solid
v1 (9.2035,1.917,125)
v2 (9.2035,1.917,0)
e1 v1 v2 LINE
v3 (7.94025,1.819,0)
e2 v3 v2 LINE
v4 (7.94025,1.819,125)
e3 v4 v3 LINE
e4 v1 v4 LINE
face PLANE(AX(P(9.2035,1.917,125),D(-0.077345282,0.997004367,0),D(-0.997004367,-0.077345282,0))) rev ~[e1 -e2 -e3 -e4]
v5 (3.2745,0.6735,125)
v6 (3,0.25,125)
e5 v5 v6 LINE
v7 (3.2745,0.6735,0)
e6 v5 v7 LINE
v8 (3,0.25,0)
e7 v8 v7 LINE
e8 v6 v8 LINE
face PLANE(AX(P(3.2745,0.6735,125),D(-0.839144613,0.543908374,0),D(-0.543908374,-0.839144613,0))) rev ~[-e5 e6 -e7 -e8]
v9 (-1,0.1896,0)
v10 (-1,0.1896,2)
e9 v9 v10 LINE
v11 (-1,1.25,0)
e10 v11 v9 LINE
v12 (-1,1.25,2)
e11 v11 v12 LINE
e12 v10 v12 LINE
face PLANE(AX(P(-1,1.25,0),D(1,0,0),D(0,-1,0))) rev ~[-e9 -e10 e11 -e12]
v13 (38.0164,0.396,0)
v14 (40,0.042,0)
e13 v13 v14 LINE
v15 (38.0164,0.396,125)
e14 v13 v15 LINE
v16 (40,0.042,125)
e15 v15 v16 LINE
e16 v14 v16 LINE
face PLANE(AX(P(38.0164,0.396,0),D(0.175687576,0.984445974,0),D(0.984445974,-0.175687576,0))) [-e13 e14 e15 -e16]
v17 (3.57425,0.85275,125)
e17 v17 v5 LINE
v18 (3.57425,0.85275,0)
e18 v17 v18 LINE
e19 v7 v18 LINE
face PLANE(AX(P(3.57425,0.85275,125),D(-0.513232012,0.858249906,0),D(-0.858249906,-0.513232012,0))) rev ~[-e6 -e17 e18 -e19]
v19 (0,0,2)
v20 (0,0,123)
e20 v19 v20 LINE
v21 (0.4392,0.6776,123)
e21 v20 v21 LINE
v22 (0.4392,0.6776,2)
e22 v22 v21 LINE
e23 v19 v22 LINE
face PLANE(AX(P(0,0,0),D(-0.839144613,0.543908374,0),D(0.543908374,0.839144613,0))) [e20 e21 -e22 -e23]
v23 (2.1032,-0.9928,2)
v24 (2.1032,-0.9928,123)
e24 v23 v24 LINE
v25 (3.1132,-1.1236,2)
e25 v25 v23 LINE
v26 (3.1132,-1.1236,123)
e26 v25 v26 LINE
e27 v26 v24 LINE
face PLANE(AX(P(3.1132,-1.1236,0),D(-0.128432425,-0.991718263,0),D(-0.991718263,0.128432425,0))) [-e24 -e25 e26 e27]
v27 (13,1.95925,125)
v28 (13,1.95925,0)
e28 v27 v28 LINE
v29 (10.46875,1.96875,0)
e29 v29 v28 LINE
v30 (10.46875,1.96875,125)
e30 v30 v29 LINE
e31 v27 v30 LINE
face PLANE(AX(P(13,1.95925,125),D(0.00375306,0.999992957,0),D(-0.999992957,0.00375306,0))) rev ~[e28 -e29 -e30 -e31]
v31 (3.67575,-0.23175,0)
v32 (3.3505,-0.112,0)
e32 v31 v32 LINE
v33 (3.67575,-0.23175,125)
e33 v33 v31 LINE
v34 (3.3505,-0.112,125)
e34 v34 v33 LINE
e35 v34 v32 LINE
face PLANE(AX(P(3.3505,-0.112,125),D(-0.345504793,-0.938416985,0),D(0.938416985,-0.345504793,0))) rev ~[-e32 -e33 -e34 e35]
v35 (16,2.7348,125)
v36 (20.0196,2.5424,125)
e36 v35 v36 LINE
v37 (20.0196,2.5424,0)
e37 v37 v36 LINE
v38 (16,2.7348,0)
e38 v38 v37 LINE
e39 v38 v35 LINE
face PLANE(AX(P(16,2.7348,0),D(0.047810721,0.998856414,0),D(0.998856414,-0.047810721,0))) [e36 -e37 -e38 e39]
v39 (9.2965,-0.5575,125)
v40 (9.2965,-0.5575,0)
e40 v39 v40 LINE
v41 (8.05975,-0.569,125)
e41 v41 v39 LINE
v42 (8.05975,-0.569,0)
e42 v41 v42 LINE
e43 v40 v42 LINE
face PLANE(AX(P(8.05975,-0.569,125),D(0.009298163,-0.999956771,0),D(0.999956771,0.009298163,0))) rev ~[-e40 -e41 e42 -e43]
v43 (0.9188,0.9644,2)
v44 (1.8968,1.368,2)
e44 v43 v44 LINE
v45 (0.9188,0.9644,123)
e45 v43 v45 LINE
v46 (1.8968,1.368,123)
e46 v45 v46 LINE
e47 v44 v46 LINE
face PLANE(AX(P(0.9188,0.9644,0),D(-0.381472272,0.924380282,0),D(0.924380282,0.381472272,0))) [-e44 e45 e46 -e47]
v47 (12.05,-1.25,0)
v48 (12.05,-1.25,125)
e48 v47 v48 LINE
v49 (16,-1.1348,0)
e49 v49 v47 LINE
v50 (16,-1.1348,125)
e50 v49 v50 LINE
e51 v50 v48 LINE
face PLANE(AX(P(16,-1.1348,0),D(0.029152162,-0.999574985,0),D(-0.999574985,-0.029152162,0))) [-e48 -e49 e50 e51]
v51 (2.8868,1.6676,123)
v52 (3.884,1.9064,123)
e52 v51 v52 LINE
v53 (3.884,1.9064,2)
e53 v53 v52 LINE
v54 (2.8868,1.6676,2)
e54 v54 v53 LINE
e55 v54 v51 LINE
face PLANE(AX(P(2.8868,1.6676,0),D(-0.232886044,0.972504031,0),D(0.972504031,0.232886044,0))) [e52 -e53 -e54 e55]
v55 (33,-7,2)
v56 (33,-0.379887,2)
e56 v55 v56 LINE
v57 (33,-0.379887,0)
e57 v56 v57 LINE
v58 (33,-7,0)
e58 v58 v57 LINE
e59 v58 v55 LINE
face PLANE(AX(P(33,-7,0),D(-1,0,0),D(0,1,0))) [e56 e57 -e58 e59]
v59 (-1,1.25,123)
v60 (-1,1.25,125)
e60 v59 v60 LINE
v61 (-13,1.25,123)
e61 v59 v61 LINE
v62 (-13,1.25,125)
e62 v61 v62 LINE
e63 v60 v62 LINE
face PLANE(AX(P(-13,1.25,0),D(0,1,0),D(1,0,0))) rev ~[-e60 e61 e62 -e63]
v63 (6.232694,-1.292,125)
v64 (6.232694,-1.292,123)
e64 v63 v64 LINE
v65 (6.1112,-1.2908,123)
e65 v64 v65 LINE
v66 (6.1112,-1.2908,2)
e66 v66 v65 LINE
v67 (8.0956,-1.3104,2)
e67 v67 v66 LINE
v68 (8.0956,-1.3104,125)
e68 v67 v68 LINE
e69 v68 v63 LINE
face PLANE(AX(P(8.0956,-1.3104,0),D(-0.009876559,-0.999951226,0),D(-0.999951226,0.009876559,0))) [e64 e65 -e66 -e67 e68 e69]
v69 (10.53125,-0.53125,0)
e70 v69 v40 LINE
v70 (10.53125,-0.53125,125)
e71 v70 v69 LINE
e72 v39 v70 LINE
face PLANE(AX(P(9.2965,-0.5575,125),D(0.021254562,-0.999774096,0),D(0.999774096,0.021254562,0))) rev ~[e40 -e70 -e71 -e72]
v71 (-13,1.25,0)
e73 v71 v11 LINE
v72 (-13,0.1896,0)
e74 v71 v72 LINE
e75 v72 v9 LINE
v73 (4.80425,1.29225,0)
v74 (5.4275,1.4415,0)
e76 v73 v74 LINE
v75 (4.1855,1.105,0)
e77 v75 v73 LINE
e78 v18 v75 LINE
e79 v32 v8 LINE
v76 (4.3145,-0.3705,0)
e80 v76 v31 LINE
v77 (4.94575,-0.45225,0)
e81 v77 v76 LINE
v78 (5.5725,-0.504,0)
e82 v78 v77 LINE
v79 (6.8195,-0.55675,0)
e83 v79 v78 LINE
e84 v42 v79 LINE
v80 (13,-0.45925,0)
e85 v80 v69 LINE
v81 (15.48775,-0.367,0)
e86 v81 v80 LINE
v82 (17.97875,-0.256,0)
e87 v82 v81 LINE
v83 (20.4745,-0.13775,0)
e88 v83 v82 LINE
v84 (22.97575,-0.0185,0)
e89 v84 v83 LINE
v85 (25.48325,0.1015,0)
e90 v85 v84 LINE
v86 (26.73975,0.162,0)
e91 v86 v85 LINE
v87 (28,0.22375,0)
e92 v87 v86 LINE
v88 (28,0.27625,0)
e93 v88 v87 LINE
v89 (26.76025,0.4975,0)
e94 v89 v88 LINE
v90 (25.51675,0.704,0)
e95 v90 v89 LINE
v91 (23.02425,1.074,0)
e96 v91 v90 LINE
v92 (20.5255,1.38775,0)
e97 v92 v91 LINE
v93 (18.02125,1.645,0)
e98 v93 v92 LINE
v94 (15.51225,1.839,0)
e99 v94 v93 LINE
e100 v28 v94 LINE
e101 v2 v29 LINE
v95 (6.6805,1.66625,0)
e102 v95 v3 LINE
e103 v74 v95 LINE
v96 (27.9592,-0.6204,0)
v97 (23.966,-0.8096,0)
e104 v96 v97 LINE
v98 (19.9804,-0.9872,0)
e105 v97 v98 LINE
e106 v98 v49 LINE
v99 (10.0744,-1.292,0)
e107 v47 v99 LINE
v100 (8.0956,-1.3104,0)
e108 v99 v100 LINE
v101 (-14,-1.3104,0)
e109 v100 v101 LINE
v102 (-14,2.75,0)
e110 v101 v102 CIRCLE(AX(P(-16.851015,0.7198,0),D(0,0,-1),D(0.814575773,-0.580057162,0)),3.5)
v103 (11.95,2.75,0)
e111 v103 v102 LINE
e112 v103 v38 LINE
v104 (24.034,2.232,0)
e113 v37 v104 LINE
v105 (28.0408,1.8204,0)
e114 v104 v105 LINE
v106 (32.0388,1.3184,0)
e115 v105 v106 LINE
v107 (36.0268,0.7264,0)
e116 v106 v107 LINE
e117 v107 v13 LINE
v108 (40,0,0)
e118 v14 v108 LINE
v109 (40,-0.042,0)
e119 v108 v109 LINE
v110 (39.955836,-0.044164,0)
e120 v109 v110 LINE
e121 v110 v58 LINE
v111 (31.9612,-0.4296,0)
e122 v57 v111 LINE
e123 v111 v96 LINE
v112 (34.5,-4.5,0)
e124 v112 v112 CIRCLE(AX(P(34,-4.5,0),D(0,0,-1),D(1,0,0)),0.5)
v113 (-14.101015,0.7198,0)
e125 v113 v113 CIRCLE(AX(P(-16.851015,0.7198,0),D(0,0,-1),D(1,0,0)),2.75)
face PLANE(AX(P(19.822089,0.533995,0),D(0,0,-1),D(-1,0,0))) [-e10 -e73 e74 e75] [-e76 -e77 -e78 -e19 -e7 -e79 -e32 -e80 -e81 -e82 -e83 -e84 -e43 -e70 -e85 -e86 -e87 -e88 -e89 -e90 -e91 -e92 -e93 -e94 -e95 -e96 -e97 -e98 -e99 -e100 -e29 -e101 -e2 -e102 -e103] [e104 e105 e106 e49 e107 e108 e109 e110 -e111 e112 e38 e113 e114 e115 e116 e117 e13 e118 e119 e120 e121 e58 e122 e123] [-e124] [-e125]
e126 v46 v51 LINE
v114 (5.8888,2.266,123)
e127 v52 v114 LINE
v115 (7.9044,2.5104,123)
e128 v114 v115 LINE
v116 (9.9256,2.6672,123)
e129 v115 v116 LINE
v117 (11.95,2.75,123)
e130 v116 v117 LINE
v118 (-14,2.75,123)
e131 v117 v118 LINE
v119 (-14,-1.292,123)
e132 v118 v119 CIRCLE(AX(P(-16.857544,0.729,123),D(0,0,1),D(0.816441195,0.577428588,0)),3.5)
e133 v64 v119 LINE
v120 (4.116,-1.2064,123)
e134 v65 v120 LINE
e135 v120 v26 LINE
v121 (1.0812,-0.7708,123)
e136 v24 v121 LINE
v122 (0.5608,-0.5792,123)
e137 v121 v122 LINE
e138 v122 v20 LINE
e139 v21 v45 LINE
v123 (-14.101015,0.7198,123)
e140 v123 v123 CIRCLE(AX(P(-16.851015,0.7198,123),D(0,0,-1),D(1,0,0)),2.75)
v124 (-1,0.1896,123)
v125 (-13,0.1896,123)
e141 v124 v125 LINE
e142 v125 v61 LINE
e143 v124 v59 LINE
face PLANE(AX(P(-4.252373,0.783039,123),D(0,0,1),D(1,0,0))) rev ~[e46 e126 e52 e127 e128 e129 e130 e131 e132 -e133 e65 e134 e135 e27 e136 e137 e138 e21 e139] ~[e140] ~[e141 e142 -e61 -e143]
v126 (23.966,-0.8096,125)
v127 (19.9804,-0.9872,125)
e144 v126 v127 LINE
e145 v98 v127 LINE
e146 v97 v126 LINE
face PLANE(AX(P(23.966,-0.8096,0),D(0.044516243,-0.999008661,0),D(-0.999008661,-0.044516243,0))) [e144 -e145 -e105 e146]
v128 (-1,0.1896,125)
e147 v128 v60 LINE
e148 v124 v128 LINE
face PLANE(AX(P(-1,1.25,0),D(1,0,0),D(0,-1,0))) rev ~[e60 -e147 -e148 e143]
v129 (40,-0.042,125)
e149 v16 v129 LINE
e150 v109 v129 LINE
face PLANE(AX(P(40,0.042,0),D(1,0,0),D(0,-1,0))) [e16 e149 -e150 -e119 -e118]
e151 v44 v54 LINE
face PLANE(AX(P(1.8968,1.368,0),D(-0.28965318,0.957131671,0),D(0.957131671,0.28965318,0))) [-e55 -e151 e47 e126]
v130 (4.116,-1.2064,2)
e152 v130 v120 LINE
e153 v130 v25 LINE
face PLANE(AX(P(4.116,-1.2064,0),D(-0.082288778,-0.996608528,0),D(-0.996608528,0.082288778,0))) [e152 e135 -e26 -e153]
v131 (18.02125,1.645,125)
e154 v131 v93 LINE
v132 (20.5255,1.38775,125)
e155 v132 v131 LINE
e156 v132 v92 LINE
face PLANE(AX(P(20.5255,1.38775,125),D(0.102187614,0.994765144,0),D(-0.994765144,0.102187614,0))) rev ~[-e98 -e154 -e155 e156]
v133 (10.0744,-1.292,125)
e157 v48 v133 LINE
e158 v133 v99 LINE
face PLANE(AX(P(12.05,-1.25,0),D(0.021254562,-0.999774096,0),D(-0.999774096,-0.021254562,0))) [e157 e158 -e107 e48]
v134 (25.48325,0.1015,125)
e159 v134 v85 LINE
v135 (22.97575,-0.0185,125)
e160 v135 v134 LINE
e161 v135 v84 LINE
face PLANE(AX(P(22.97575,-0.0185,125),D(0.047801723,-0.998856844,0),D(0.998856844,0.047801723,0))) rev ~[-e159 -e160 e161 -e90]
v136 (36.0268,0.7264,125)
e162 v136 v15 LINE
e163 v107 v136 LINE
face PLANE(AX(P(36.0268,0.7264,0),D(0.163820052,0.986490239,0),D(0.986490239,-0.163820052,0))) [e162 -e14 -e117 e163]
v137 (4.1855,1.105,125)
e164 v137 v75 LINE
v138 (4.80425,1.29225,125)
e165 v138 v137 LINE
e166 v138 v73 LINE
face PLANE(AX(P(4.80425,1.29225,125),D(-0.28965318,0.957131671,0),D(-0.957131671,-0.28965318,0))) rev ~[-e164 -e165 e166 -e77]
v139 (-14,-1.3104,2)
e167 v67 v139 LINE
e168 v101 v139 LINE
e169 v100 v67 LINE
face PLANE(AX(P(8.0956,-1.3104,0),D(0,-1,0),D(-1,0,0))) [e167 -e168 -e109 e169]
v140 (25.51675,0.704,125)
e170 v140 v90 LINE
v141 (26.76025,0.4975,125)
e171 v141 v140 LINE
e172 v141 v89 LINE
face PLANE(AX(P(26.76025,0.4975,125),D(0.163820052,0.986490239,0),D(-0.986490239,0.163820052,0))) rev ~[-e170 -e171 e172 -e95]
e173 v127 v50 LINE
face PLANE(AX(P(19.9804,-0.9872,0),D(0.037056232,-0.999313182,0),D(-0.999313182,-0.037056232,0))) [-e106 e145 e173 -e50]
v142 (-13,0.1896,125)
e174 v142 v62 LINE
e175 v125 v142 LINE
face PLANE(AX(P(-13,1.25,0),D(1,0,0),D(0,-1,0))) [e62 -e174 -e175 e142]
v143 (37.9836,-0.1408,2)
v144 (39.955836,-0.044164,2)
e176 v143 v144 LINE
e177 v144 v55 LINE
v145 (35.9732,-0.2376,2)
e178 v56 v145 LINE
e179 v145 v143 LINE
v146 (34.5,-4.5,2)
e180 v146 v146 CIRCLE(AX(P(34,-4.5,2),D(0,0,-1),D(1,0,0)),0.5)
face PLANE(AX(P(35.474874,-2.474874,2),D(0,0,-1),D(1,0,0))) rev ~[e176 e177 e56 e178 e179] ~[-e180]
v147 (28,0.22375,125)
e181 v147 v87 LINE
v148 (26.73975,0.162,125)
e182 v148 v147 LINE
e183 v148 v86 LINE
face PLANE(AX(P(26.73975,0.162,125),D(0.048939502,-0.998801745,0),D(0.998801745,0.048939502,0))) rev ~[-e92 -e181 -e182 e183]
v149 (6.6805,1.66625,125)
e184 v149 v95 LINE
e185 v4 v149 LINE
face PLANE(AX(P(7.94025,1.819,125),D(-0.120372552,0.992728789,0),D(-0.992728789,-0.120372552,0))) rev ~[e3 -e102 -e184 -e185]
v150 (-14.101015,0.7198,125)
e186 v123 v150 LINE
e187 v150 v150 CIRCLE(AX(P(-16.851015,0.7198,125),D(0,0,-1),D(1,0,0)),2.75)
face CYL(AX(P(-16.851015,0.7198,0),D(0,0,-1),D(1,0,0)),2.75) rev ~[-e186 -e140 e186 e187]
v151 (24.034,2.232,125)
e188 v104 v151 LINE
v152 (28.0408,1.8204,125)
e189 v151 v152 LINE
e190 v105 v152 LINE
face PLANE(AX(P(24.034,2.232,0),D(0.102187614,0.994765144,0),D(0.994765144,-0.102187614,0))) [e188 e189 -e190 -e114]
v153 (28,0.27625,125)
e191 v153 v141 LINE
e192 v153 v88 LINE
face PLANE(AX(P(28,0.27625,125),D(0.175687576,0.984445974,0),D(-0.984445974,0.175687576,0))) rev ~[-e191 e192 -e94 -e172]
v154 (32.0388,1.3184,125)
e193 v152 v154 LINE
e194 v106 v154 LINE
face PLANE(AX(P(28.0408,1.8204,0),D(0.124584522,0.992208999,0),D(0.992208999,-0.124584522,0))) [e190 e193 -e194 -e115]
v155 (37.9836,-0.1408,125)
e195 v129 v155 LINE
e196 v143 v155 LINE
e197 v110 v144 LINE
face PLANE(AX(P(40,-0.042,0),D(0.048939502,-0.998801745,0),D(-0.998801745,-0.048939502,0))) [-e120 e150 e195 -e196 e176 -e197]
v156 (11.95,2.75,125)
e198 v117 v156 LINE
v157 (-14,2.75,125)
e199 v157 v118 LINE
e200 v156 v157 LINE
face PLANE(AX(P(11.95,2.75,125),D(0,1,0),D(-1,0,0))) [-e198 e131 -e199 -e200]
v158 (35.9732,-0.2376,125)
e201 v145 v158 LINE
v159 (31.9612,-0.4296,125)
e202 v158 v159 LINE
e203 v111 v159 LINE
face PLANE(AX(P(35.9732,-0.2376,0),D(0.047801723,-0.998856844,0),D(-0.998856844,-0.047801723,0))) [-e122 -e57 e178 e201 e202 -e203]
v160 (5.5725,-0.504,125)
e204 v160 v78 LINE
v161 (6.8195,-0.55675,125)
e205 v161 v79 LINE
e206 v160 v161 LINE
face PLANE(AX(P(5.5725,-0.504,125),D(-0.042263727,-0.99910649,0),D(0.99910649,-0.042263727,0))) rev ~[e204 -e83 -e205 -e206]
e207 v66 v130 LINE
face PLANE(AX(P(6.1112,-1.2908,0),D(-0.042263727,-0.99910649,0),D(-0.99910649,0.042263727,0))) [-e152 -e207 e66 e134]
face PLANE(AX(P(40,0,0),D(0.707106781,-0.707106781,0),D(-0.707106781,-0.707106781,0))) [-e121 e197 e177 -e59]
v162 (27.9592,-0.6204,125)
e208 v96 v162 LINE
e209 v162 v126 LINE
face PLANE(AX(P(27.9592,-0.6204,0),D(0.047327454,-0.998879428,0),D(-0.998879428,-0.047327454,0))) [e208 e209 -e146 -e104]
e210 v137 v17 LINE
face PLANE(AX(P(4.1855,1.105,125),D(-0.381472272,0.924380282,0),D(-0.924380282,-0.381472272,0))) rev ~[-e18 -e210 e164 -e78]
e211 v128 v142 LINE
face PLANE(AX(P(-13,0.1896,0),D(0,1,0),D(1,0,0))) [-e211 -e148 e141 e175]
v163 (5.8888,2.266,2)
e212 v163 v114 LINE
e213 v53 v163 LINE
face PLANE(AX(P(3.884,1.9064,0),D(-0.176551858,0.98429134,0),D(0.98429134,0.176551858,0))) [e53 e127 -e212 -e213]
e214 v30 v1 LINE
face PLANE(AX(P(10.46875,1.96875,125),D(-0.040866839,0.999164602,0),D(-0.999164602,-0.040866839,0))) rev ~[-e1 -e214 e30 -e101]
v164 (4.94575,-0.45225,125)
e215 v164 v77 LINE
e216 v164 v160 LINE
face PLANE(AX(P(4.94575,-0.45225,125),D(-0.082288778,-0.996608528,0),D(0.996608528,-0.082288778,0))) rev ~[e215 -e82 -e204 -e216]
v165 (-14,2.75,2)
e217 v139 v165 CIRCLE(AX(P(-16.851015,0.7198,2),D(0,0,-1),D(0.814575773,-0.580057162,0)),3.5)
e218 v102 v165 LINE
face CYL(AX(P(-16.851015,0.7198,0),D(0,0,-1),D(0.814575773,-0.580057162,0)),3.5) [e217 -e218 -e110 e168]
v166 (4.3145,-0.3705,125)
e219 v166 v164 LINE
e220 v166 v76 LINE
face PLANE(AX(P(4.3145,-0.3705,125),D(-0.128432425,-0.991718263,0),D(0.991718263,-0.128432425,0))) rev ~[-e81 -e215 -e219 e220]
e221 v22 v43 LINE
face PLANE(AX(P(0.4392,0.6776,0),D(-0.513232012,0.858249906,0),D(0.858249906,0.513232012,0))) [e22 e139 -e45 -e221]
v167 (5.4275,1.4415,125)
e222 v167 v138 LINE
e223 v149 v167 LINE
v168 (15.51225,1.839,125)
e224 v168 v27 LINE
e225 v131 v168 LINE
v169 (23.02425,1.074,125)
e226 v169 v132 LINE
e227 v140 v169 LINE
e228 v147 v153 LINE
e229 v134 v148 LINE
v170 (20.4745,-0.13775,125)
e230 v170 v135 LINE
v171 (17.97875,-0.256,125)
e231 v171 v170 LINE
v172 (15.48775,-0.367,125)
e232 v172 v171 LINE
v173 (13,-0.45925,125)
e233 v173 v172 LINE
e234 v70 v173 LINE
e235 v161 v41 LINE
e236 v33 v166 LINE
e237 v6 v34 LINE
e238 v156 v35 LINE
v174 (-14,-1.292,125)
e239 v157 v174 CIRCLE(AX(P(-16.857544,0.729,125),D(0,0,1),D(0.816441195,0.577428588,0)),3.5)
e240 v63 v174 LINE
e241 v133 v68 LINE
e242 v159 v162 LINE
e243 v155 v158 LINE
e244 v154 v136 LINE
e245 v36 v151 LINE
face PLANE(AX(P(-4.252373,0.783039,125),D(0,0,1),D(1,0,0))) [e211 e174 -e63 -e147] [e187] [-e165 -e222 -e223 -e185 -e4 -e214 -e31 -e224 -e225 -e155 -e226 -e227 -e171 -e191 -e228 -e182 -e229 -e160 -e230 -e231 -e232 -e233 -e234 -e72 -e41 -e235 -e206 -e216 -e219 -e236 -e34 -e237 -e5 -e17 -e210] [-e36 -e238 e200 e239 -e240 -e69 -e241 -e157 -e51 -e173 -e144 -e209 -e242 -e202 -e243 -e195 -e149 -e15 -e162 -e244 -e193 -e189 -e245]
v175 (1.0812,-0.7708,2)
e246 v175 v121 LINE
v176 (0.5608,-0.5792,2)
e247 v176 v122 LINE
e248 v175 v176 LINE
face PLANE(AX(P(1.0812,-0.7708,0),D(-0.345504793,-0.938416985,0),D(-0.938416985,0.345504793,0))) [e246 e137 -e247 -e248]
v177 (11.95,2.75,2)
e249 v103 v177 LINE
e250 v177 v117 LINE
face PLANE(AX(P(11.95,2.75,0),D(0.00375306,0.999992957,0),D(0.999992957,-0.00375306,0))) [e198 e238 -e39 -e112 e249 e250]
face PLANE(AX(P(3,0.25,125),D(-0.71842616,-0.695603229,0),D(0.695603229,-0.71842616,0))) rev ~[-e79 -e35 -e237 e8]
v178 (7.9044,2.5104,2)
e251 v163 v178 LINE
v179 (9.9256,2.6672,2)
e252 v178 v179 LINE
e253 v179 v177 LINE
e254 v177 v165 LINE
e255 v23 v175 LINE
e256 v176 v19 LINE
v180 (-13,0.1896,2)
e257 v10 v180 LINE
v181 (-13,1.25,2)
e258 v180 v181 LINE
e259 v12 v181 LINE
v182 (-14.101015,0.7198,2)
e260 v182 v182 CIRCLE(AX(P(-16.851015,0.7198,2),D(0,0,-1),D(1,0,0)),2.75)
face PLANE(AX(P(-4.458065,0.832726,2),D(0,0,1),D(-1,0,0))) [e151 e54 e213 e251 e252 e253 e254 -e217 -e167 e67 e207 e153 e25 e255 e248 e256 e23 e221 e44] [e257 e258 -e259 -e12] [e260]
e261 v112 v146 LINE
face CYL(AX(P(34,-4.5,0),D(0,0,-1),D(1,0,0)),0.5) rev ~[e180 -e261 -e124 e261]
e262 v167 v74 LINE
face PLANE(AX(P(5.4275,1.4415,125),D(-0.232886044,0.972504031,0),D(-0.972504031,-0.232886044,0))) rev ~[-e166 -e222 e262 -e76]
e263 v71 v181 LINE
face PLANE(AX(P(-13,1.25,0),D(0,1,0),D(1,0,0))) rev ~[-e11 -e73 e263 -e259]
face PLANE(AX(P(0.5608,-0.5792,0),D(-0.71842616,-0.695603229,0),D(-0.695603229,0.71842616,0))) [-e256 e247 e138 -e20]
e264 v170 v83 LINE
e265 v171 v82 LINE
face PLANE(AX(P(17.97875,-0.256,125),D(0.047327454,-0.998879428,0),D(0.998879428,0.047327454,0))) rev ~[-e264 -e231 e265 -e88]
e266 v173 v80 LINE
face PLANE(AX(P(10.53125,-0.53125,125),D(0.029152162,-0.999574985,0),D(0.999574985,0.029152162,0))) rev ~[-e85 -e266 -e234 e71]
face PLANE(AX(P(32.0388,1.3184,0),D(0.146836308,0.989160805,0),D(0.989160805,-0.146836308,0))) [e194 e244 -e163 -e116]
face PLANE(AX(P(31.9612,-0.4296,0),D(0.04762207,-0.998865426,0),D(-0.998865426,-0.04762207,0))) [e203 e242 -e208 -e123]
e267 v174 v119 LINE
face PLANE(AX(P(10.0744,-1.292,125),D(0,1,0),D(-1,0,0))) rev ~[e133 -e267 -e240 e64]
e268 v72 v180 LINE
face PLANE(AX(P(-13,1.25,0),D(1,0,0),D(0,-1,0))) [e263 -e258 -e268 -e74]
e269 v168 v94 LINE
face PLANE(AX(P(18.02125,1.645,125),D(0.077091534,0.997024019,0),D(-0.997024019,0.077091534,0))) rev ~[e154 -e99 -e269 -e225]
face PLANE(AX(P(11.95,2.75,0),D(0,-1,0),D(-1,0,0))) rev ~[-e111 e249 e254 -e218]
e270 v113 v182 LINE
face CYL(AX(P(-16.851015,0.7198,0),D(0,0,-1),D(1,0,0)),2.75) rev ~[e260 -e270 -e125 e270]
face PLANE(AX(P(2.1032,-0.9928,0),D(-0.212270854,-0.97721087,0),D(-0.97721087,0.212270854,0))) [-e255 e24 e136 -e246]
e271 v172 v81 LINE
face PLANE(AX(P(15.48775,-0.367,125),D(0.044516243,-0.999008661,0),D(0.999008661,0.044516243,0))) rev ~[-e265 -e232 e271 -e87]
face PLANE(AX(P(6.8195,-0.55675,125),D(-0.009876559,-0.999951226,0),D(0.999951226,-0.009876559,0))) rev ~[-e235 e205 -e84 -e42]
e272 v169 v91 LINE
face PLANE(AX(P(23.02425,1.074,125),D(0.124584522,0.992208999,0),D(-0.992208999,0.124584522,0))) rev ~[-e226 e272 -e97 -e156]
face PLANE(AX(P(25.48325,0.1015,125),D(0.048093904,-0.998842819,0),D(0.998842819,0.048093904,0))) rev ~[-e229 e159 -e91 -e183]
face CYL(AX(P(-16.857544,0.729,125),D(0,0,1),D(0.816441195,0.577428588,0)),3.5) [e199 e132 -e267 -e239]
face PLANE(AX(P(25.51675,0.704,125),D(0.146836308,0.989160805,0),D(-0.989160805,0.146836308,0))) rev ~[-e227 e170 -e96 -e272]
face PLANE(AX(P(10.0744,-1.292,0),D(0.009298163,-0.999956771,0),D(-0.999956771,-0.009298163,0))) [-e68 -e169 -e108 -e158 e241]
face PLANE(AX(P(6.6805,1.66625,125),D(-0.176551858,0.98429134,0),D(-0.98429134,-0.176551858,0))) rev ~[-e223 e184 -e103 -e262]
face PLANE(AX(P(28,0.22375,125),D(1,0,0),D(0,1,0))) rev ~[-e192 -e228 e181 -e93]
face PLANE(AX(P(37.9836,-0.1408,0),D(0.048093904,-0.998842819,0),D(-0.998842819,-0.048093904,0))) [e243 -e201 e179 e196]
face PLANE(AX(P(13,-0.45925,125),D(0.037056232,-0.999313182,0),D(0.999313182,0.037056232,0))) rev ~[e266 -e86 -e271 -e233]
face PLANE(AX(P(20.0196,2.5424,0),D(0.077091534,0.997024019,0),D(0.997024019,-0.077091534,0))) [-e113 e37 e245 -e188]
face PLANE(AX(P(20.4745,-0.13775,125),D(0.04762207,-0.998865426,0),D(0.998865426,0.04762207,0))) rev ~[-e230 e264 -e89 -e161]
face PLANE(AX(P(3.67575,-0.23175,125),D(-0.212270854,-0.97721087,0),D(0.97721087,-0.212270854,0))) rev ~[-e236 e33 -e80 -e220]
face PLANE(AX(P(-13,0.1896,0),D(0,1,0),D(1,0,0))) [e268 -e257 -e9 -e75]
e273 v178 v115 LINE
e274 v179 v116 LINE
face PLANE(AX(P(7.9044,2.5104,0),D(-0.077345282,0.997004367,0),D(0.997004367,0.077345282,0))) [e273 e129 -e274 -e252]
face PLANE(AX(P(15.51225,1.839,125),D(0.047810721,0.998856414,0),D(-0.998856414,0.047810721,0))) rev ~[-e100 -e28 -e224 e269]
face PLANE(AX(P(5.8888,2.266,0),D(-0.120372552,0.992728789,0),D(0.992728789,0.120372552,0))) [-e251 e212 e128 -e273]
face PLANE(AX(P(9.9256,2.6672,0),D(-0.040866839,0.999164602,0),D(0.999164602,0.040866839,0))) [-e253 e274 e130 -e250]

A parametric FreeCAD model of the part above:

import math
import FreeCAD as App
import Part
import Sketcher

V = App.Vector

doc = App.newDocument("Part")
body = doc.addObject("PartDesign::Body", "Body")

# Sketch on XY plane
sketch1 = body.newObject("Sketcher::SketchObject", "Sketch")
sketch1.AttachmentSupport = (doc.getObject("XY_Plane"), [""])
sketch1.MapMode = "FlatFace"
sketch1.addGeometry(Part.LineSegment(V(40, 0.04, 0), V(38.02, 0.4, 0)), False)
sketch1.addGeometry(Part.LineSegment(V(38.02, 0.4, 0), V(36.03, 0.73, 0)), False)
sketch1.addGeometry(Part.LineSegment(V(36.03, 0.73, 0), V(32.04, 1.32, 0)), False)
sketch1.addGeometry(Part.LineSegment(V(32.04, 1.32, 0), V(28.04, 1.82, 0)), False)
sketch1.addGeometry(Part.LineSegment(V(28.04, 1.82, 0), V(24.03, 2.23, 0)), False)
sketch1.addGeometry(Part.LineSegment(V(24.03, 2.23, 0), V(20.02, 2.54, 0)), False)
sketch1.addGeometry(Part.LineSegment(V(20.02, 2.54, 0), V(16, 2.73, 0)), False)
sketch1.addGeometry(Part.LineSegment(V(16, 2.73, 0), V(11.95, 2.75, 0)), False)
sketch1.addGeometry(Part.LineSegment(V(11.95, 2.75, 0), V(9.93, 2.67, 0)), False)
sketch1.addGeometry(Part.LineSegment(V(9.93, 2.67, 0), V(7.9, 2.51, 0)), False)
sketch1.addGeometry(Part.LineSegment(V(7.9, 2.51, 0), V(5.89, 2.27, 0)), False)
sketch1.addGeometry(Part.LineSegment(V(5.89, 2.27, 0), V(3.88, 1.91, 0)), False)
sketch1.addGeometry(Part.LineSegment(V(3.88, 1.91, 0), V(2.89, 1.67, 0)), False)
sketch1.addGeometry(Part.LineSegment(V(2.89, 1.67, 0), V(1.9, 1.37, 0)), False)
sketch1.addGeometry(Part.LineSegment(V(1.9, 1.37, 0), V(0.92, 0.96, 0)), False)
sketch1.addGeometry(Part.LineSegment(V(0.92, 0.96, 0), V(0.44, 0.68, 0)), False)
sketch1.addGeometry(Part.LineSegment(V(0.44, 0.68, 0), V(0, 0, 0)), False)
sketch1.addGeometry(Part.LineSegment(V(0, 0, 0), V(0.56, -0.58, 0)), False)
sketch1.addGeometry(Part.LineSegment(V(0.56, -0.58, 0), V(1.08, -0.77, 0)), False)
sketch1.addGeometry(Part.LineSegment(V(1.08, -0.77, 0), V(2.1, -0.99, 0)), False)
sketch1.addGeometry(Part.LineSegment(V(2.1, -0.99, 0), V(3.11, -1.12, 0)), False)
sketch1.addGeometry(Part.LineSegment(V(3.11, -1.12, 0), V(4.12, -1.21, 0)), False)
sketch1.addGeometry(Part.LineSegment(V(4.12, -1.21, 0), V(6.11, -1.29, 0)), False)
sketch1.addGeometry(Part.LineSegment(V(6.11, -1.29, 0), V(8.1, -1.31, 0)), False)
sketch1.addGeometry(Part.LineSegment(V(8.1, -1.31, 0), V(10.07, -1.29, 0)), False)
sketch1.addGeometry(Part.LineSegment(V(10.07, -1.29, 0), V(12.05, -1.25, 0)), False)
sketch1.addGeometry(Part.LineSegment(V(12.05, -1.25, 0), V(16, -1.13, 0)), False)
sketch1.addGeometry(Part.LineSegment(V(16, -1.13, 0), V(19.98, -0.99, 0)), False)
sketch1.addGeometry(Part.LineSegment(V(19.98, -0.99, 0), V(23.97, -0.81, 0)), False)
sketch1.addGeometry(Part.LineSegment(V(23.97, -0.81, 0), V(27.96, -0.62, 0)), False)
sketch1.addGeometry(Part.LineSegment(V(27.96, -0.62, 0), V(31.96, -0.43, 0)), False)
sketch1.addGeometry(Part.LineSegment(V(31.96, -0.43, 0), V(35.97, -0.24, 0)), False)
sketch1.addGeometry(Part.LineSegment(V(35.97, -0.24, 0), V(37.98, -0.14, 0)), False)
sketch1.addGeometry(Part.LineSegment(V(37.98, -0.14, 0), V(40, -0.04, 0)), False)
sketch1.addGeometry(Part.LineSegment(V(40, -0.04, 0), V(40, 0.04, 0)), False)
sketch1.addConstraint(Sketcher.Constraint("Coincident", 0, 2, 1, 1))
sketch1.addConstraint(Sketcher.Constraint("Coincident", 1, 2, 2, 1))
sketch1.addConstraint(Sketcher.Constraint("Coincident", 2, 2, 3, 1))
sketch1.addConstraint(Sketcher.Constraint("Coincident", 3, 2, 4, 1))
sketch1.addConstraint(Sketcher.Constraint("Coincident", 4, 2, 5, 1))
sketch1.addConstraint(Sketcher.Constraint("Coincident", 5, 2, 6, 1))
sketch1.addConstraint(Sketcher.Constraint("Coincident", 6, 2, 7, 1))
sketch1.addConstraint(Sketcher.Constraint("Coincident", 7, 2, 8, 1))
sketch1.addConstraint(Sketcher.Constraint("Coincident", 8, 2, 9, 1))
sketch1.addConstraint(Sketcher.Constraint("Coincident", 9, 2, 10, 1))
sketch1.addConstraint(Sketcher.Constraint("Coincident", 10, 2, 11, 1))
sketch1.addConstraint(Sketcher.Constraint("Coincident", 11, 2, 12, 1))
sketch1.addConstraint(Sketcher.Constraint("Coincident", 12, 2, 13, 1))
sketch1.addConstraint(Sketcher.Constraint("Coincident", 13, 2, 14, 1))
sketch1.addConstraint(Sketcher.Constraint("Coincident", 14, 2, 15, 1))
sketch1.addConstraint(Sketcher.Constraint("Coincident", 15, 2, 16, 1))
sketch1.addConstraint(Sketcher.Constraint("Coincident", 16, 2, 17, 1))
sketch1.addConstraint(Sketcher.Constraint("Coincident", 17, 2, 18, 1))
sketch1.addConstraint(Sketcher.Constraint("Coincident", 18, 2, 19, 1))
sketch1.addConstraint(Sketcher.Constraint("Coincident", 19, 2, 20, 1))
sketch1.addConstraint(Sketcher.Constraint("Coincident", 20, 2, 21, 1))
sketch1.addConstraint(Sketcher.Constraint("Coincident", 21, 2, 22, 1))
sketch1.addConstraint(Sketcher.Constraint("Coincident", 22, 2, 23, 1))
sketch1.addConstraint(Sketcher.Constraint("Coincident", 23, 2, 24, 1))
sketch1.addConstraint(Sketcher.Constraint("Coincident", 24, 2, 25, 1))
sketch1.addConstraint(Sketcher.Constraint("Coincident", 25, 2, 26, 1))
sketch1.addConstraint(Sketcher.Constraint("Coincident", 26, 2, 27, 1))
sketch1.addConstraint(Sketcher.Constraint("Coincident", 27, 2, 28, 1))
sketch1.addConstraint(Sketcher.Constraint("Coincident", 28, 2, 29, 1))
sketch1.addConstraint(Sketcher.Constraint("Coincident", 29, 2, 30, 1))
sketch1.addConstraint(Sketcher.Constraint("Coincident", 30, 2, 31, 1))
sketch1.addConstraint(Sketcher.Constraint("Coincident", 31, 2, 32, 1))
sketch1.addConstraint(Sketcher.Constraint("Coincident", 32, 2, 33, 1))
sketch1.addConstraint(Sketcher.Constraint("Coincident", 33, 2, 34, 1))
sketch1.addConstraint(Sketcher.Constraint("Coincident", 34, 2, 0, 1))
sketch1.addConstraint(Sketcher.Constraint("Vertical", 34))
sketch1.addConstraint(Sketcher.Constraint("Coincident", 16, 2, -1, 1))
sketch1.addConstraint(Sketcher.Constraint("Vertical", 6, 2, 26, 2))
sketch1.addConstraint(Sketcher.Constraint("DistanceX", -1, 1, 6, 2, 16.0))
sketch1.addConstraint(Sketcher.Constraint("DistanceX", -1, 1, 33, 2, 40.0))
sketch1.addConstraint(Sketcher.Constraint("DistanceY", 25, 2, 7, 2, 4.0))
sketch1.addConstraint(Sketcher.Constraint("DistanceX", 7, 2, 25, 2, 0.1))
sketch1.addConstraint(Sketcher.Constraint("DistanceY", 34, 1, 34, 2, 0.084))
sketch1.addConstraint(Sketcher.Constraint("DistanceX", -1, 1, 7, 2, 11.95))
sketch1.addConstraint(Sketcher.Constraint("DistanceY", -1, 1, 7, 2, 2.75))
sketch1.addConstraint(Sketcher.Constraint("DistanceX", 13, 2, 12, 2, 0.99))
sketch1.addConstraint(Sketcher.Constraint("DistanceX", 14, 2, 10, 2, 4.97))
sketch1.addConstraint(Sketcher.Constraint("DistanceY", 15, 2, 12, 2, 0.99))
sketch1.addConstraint(Sketcher.Constraint("DistanceX", 19, 2, 20, 2, 1.01))
sketch1.addConstraint(Sketcher.Constraint("DistanceX", 23, 2, 8, 2, 1.83))
sketch1.addConstraint(Sketcher.Constraint("DistanceX", 9, 2, 24, 2, 2.17))
sketch1.addConstraint(Sketcher.Constraint("DistanceY", 28, 2, 3, 2, 2.63))
sketch1.addConstraint(Sketcher.Constraint("DistanceY", 30, 2, 3, 2, 2.25))
sketch1.addConstraint(Sketcher.Constraint("DistanceY", -1, 1, 0, 2, 0.396))
sketch1.addConstraint(Sketcher.Constraint("DistanceX", -1, 1, 4, 2, 24.034))
sketch1.addConstraint(Sketcher.Constraint("DistanceY", -1, 1, 4, 2, 2.232))
sketch1.addConstraint(Sketcher.Constraint("DistanceY", -1, 1, 10, 2, 2.266))
sketch1.addConstraint(Sketcher.Constraint("DistanceX", -1, 1, 11, 2, 3.884))
sketch1.addConstraint(Sketcher.Constraint("DistanceY", -1, 1, 13, 2, 1.368))
sketch1.addConstraint(Sketcher.Constraint("DistanceX", -1, 1, 21, 2, 4.116))
sketch1.addConstraint(Sketcher.Constraint("DistanceY", 24, 2, -1, 1, 1.292))
sketch1.addConstraint(Sketcher.Constraint("DistanceX", -1, 1, 28, 2, 23.966))
sketch1.addConstraint(Sketcher.Constraint("DistanceY", 33, 2, -1, 1, 0.042))
sketch1.addConstraint(Sketcher.Constraint("DistanceX", 2, 2, 1, 2, 3.988))
sketch1.addConstraint(Sketcher.Constraint("DistanceY", 1, 2, 2, 2, 0.592))
sketch1.addConstraint(Sketcher.Constraint("DistanceX", 3, 2, 2, 2, 3.998))
sketch1.addConstraint(Sketcher.Constraint("DistanceY", 2, 2, 3, 2, 0.502))
sketch1.addConstraint(Sketcher.Constraint("DistanceY", 3, 2, 5, 2, 0.722))
sketch1.addConstraint(Sketcher.Constraint("DistanceX", 8, 2, 5, 2, 10.094))
sketch1.addConstraint(Sketcher.Constraint("DistanceY", 9, 2, 5, 2, 0.032))
sketch1.addConstraint(Sketcher.Constraint("DistanceY", 11, 2, 9, 2, 0.604))
sketch1.addConstraint(Sketcher.Constraint("DistanceX", 12, 2, 10, 2, 3.002))
sketch1.addConstraint(Sketcher.Constraint("DistanceY", 14, 2, 11, 2, 0.942))
sketch1.addConstraint(Sketcher.Constraint("DistanceX", 17, 2, 14, 2, 0.358))
sketch1.addConstraint(Sketcher.Constraint("DistanceX", 15, 2, 18, 2, 0.642))
sketch1.addConstraint(Sketcher.Constraint("DistanceX", 18, 2, 19, 2, 1.022))
sketch1.addConstraint(Sketcher.Constraint("DistanceY", 19, 2, 18, 2, 0.222))
sketch1.addConstraint(Sketcher.Constraint("DistanceY", 21, 2, 12, 2, 2.874))
sketch1.addConstraint(Sketcher.Constraint("DistanceX", 20, 2, 22, 2, 2.998))
sketch1.addConstraint(Sketcher.Constraint("DistanceY", 22, 2, 19, 2, 0.298))
sketch1.addConstraint(Sketcher.Constraint("DistanceY", 23, 2, 21, 2, 0.104))
sketch1.addConstraint(Sketcher.Constraint("DistanceY", 27, 2, 6, 2, 3.722))
sketch1.addConstraint(Sketcher.Constraint("DistanceX", 29, 2, 30, 2, 4.002))
sketch1.addConstraint(Sketcher.Constraint("DistanceY", 31, 2, 1, 2, 0.964))
sketch1.addConstraint(Sketcher.Constraint("DistanceX", 30, 2, 31, 2, 4.012))
sketch1.addConstraint(Sketcher.Constraint("DistanceX", -1, 1, 0, 2, 38.0164))
sketch1.addConstraint(Sketcher.Constraint("DistanceX", -1, 1, 1, 2, 36.0268))
sketch1.addConstraint(Sketcher.Constraint("DistanceY", -1, 1, 1, 2, 0.7264))
sketch1.addConstraint(Sketcher.Constraint("DistanceX", -1, 1, 5, 2, 20.0196))
sketch1.addConstraint(Sketcher.Constraint("DistanceY", -1, 1, 6, 2, 2.7348))
sketch1.addConstraint(Sketcher.Constraint("DistanceY", -1, 1, 8, 2, 2.6672))
sketch1.addConstraint(Sketcher.Constraint("DistanceX", -1, 1, 9, 2, 7.9044))
sketch1.addConstraint(Sketcher.Constraint("DistanceX", -1, 1, 10, 2, 5.8888))
sketch1.addConstraint(Sketcher.Constraint("DistanceY", -1, 1, 12, 2, 1.6676))
sketch1.addConstraint(Sketcher.Constraint("DistanceX", -1, 1, 15, 2, 0.4392))
sketch1.addConstraint(Sketcher.Constraint("DistanceY", 17, 2, -1, 1, 0.5792))
sketch1.addConstraint(Sketcher.Constraint("DistanceY", 18, 2, -1, 1, 0.7708))
sketch1.addConstraint(Sketcher.Constraint("DistanceY", 20, 2, -1, 1, 1.1236))
sketch1.addConstraint(Sketcher.Constraint("DistanceY", 26, 2, -1, 1, 1.1348))
sketch1.addConstraint(Sketcher.Constraint("DistanceX", -1, 1, 27, 2, 19.9804))
sketch1.addConstraint(Sketcher.Constraint("DistanceX", -1, 1, 29, 2, 27.9592))
sketch1.addConstraint(Sketcher.Constraint("DistanceY", 29, 2, -1, 1, 0.6204))
sketch1.addConstraint(Sketcher.Constraint("DistanceX", -1, 1, 32, 2, 37.9836))
sketch1.addConstraint(Sketcher.Constraint("DistanceY", 32, 2, -1, 1, 0.1408))
pad1 = body.newObject("PartDesign::Pad", "Pad")
pad1.Profile = sketch1
pad1.Length = 125

# Sketch on XY plane
sketch2 = body.newObject("Sketcher::SketchObject", "Sketch001")
sketch2.AttachmentSupport = (doc.getObject("XY_Plane"), [""])
sketch2.MapMode = "FlatFace"
sketch2.AttachmentOffset = App.Placement(V(0, 0, 125), App.Rotation())
sketch2.addGeometry(Part.LineSegment(V(11.9, 2.8, 0), V(-14, 2.8, 0)), False)
sketch2.addGeometry(Part.ArcOfCircle(Part.Circle(V(-16.9, 0.7, 0), V(0, 0, 1), 3.5), math.radians(35), math.radians(325)), False)
sketch2.addGeometry(Part.LineSegment(V(-14, -1.3, 0), V(10.1, -1.3, 0)), False)
sketch2.addGeometry(Part.LineSegment(V(10.1, -1.3, 0), V(11.9, 2.8, 0)), False)
sketch2.addConstraint(Sketcher.Constraint("Coincident", 0, 2, 1, 1))
sketch2.addConstraint(Sketcher.Constraint("Coincident", 1, 2, 2, 1))
sketch2.addConstraint(Sketcher.Constraint("Coincident", 2, 2, 3, 1))
sketch2.addConstraint(Sketcher.Constraint("Coincident", 3, 2, 0, 1))
sketch2.addConstraint(Sketcher.Constraint("Horizontal", 0))
sketch2.addConstraint(Sketcher.Constraint("Horizontal", 2))
sketch2.addConstraint(Sketcher.Constraint("Vertical", 0, 2, 1, 2))
sketch2.addConstraint(Sketcher.Constraint("Radius", 1, 3.5))
sketch2.addConstraint(Sketcher.Constraint("DistanceX", 0, 2, -1, 1, 14.0))
sketch2.addConstraint(Sketcher.Constraint("DistanceX", 0, 2, 0, 1, 25.95))
sketch2.addConstraint(Sketcher.Constraint("DistanceY", -1, 1, 0, 2, 2.75))
sketch2.addConstraint(Sketcher.Constraint("DistanceX", 2, 1, 2, 2, 24.0744))
sketch2.addConstraint(Sketcher.Constraint("DistanceY", -1, 1, 1, 3, 0.729))
pad2 = body.newObject("PartDesign::Pad", "Pad001")
pad2.Profile = sketch2
pad2.Length = 2
pad2.Reversed = True

# Sketch on XY plane
sketch3 = body.newObject("Sketcher::SketchObject", "Sketch002")
sketch3.AttachmentSupport = (doc.getObject("XY_Plane"), [""])
sketch3.MapMode = "FlatFace"
sketch3.addGeometry(Part.LineSegment(V(11.9, 2.8, 0), V(8.1, -1.3, 0)), False)
sketch3.addGeometry(Part.LineSegment(V(8.1, -1.3, 0), V(-14, -1.3, 0)), False)
sketch3.addGeometry(Part.ArcOfCircle(Part.Circle(V(-16.9, 0.7, 0), V(0, 0, 1), 3.5), math.radians(35), math.radians(325)), False)
sketch3.addGeometry(Part.LineSegment(V(-14, 2.8, 0), V(11.9, 2.8, 0)), False)
sketch3.addConstraint(Sketcher.Constraint("Coincident", 0, 2, 1, 1))
sketch3.addConstraint(Sketcher.Constraint("Coincident", 1, 2, 2, 2))
sketch3.addConstraint(Sketcher.Constraint("Coincident", 2, 1, 3, 1))
sketch3.addConstraint(Sketcher.Constraint("Coincident", 3, 2, 0, 1))
sketch3.addConstraint(Sketcher.Constraint("Horizontal", 1))
sketch3.addConstraint(Sketcher.Constraint("Horizontal", 3))
sketch3.addConstraint(Sketcher.Constraint("Vertical", 1, 2, 2, 1))
sketch3.addConstraint(Sketcher.Constraint("Radius", 2, 3.5))
sketch3.addConstraint(Sketcher.Constraint("DistanceX", 1, 2, -1, 1, 14.0))
sketch3.addConstraint(Sketcher.Constraint("DistanceX", 3, 1, 3, 2, 25.95))
sketch3.addConstraint(Sketcher.Constraint("DistanceY", -1, 1, 2, 1, 2.75))
sketch3.addConstraint(Sketcher.Constraint("DistanceX", 1, 2, 1, 1, 22.0956))
sketch3.addConstraint(Sketcher.Constraint("DistanceY", -1, 1, 2, 3, 0.7198))
pad3 = body.newObject("PartDesign::Pad", "Pad002")
pad3.Profile = sketch3
pad3.Length = 2

# Sketch on XY plane
sketch4 = body.newObject("Sketcher::SketchObject", "Sketch003")
sketch4.AttachmentSupport = (doc.getObject("XY_Plane"), [""])
sketch4.MapMode = "FlatFace"
sketch4.addGeometry(Part.Circle(V(-16.9, 0.7, 0), V(0, 0, 1), 2.8), False)
sketch4.addConstraint(Sketcher.Constraint("Diameter", 0, 5.5))
sketch4.addConstraint(Sketcher.Constraint("DistanceY", -1, 1, 0, 3, 0.7198))
sketch4.addConstraint(Sketcher.Constraint("DistanceX", 0, 3, -1, 1, 16.851015))
pocket1 = body.newObject("PartDesign::Pocket", "Pocket")
pocket1.Profile = sketch4
pocket1.Type = "ThroughAll"
pocket1.Reversed = True

# Sketch on XY plane
sketch5 = body.newObject("Sketcher::SketchObject", "Sketch004")
sketch5.AttachmentSupport = (doc.getObject("XY_Plane"), [""])
sketch5.MapMode = "FlatFace"
sketch5.AttachmentOffset = App.Placement(V(0, 0, 125), App.Rotation())
sketch5.addGeometry(Part.LineSegment(V(28, 0.28, 0), V(26.76, 0.5, 0)), False)
sketch5.addGeometry(Part.LineSegment(V(26.76, 0.5, 0), V(25.52, 0.7, 0)), False)
sketch5.addGeometry(Part.LineSegment(V(25.52, 0.7, 0), V(23.02, 1.07, 0)), False)
sketch5.addGeometry(Part.LineSegment(V(23.02, 1.07, 0), V(20.53, 1.39, 0)), False)
sketch5.addGeometry(Part.LineSegment(V(20.53, 1.39, 0), V(18.02, 1.65, 0)), False)
sketch5.addGeometry(Part.LineSegment(V(18.02, 1.65, 0), V(15.51, 1.84, 0)), False)
sketch5.addGeometry(Part.LineSegment(V(15.51, 1.84, 0), V(13, 1.96, 0)), False)
sketch5.addGeometry(Part.LineSegment(V(13, 1.96, 0), V(10.47, 1.97, 0)), False)
sketch5.addGeometry(Part.LineSegment(V(10.47, 1.97, 0), V(9.2, 1.92, 0)), False)
sketch5.addGeometry(Part.LineSegment(V(9.2, 1.92, 0), V(7.94, 1.82, 0)), False)
sketch5.addGeometry(Part.LineSegment(V(7.94, 1.82, 0), V(6.68, 1.67, 0)), False)
sketch5.addGeometry(Part.LineSegment(V(6.68, 1.67, 0), V(5.43, 1.44, 0)), False)
sketch5.addGeometry(Part.LineSegment(V(5.43, 1.44, 0), V(4.8, 1.29, 0)), False)
sketch5.addGeometry(Part.LineSegment(V(4.8, 1.29, 0), V(4.19, 1.1, 0)), False)
sketch5.addGeometry(Part.LineSegment(V(4.19, 1.1, 0), V(3.57, 0.85, 0)), False)
sketch5.addGeometry(Part.LineSegment(V(3.57, 0.85, 0), V(3.27, 0.67, 0)), False)
sketch5.addGeometry(Part.LineSegment(V(3.27, 0.67, 0), V(3, 0.25, 0)), False)
sketch5.addGeometry(Part.LineSegment(V(3, 0.25, 0), V(3.35, -0.11, 0)), False)
sketch5.addGeometry(Part.LineSegment(V(3.35, -0.11, 0), V(3.68, -0.23, 0)), False)
sketch5.addGeometry(Part.LineSegment(V(3.68, -0.23, 0), V(4.31, -0.37, 0)), False)
sketch5.addGeometry(Part.LineSegment(V(4.31, -0.37, 0), V(4.95, -0.45, 0)), False)
sketch5.addGeometry(Part.LineSegment(V(4.95, -0.45, 0), V(5.57, -0.5, 0)), False)
sketch5.addGeometry(Part.LineSegment(V(5.57, -0.5, 0), V(6.82, -0.56, 0)), False)
sketch5.addGeometry(Part.LineSegment(V(6.82, -0.56, 0), V(8.06, -0.57, 0)), False)
sketch5.addGeometry(Part.LineSegment(V(8.06, -0.57, 0), V(9.3, -0.56, 0)), False)
sketch5.addGeometry(Part.LineSegment(V(9.3, -0.56, 0), V(10.53, -0.53, 0)), False)
sketch5.addGeometry(Part.LineSegment(V(10.53, -0.53, 0), V(13, -0.46, 0)), False)
sketch5.addGeometry(Part.LineSegment(V(13, -0.46, 0), V(15.49, -0.37, 0)), False)
sketch5.addGeometry(Part.LineSegment(V(15.49, -0.37, 0), V(17.98, -0.26, 0)), False)
sketch5.addGeometry(Part.LineSegment(V(17.98, -0.26, 0), V(20.47, -0.14, 0)), False)
sketch5.addGeometry(Part.LineSegment(V(20.47, -0.14, 0), V(22.98, -0.02, 0)), False)
sketch5.addGeometry(Part.LineSegment(V(22.98, -0.02, 0), V(25.48, 0.1, 0)), False)
sketch5.addGeometry(Part.LineSegment(V(25.48, 0.1, 0), V(26.74, 0.16, 0)), False)
sketch5.addGeometry(Part.LineSegment(V(26.74, 0.16, 0), V(28, 0.22, 0)), False)
sketch5.addGeometry(Part.LineSegment(V(28, 0.22, 0), V(28, 0.28, 0)), False)
sketch5.addConstraint(Sketcher.Constraint("Coincident", 0, 2, 1, 1))
sketch5.addConstraint(Sketcher.Constraint("Coincident", 1, 2, 2, 1))
sketch5.addConstraint(Sketcher.Constraint("Coincident", 2, 2, 3, 1))
sketch5.addConstraint(Sketcher.Constraint("Coincident", 3, 2, 4, 1))
sketch5.addConstraint(Sketcher.Constraint("Coincident", 4, 2, 5, 1))
sketch5.addConstraint(Sketcher.Constraint("Coincident", 5, 2, 6, 1))
sketch5.addConstraint(Sketcher.Constraint("Coincident", 6, 2, 7, 1))
sketch5.addConstraint(Sketcher.Constraint("Coincident", 7, 2, 8, 1))
sketch5.addConstraint(Sketcher.Constraint("Coincident", 8, 2, 9, 1))
sketch5.addConstraint(Sketcher.Constraint("Coincident", 9, 2, 10, 1))
sketch5.addConstraint(Sketcher.Constraint("Coincident", 10, 2, 11, 1))
sketch5.addConstraint(Sketcher.Constraint("Coincident", 11, 2, 12, 1))
sketch5.addConstraint(Sketcher.Constraint("Coincident", 12, 2, 13, 1))
sketch5.addConstraint(Sketcher.Constraint("Coincident", 13, 2, 14, 1))
sketch5.addConstraint(Sketcher.Constraint("Coincident", 14, 2, 15, 1))
sketch5.addConstraint(Sketcher.Constraint("Coincident", 15, 2, 16, 1))
sketch5.addConstraint(Sketcher.Constraint("Coincident", 16, 2, 17, 1))
sketch5.addConstraint(Sketcher.Constraint("Coincident", 17, 2, 18, 1))
sketch5.addConstraint(Sketcher.Constraint("Coincident", 18, 2, 19, 1))
sketch5.addConstraint(Sketcher.Constraint("Coincident", 19, 2, 20, 1))
sketch5.addConstraint(Sketcher.Constraint("Coincident", 20, 2, 21, 1))
sketch5.addConstraint(Sketcher.Constraint("Coincident", 21, 2, 22, 1))
sketch5.addConstraint(Sketcher.Constraint("Coincident", 22, 2, 23, 1))
sketch5.addConstraint(Sketcher.Constraint("Coincident", 23, 2, 24, 1))
sketch5.addConstraint(Sketcher.Constraint("Coincident", 24, 2, 25, 1))
sketch5.addConstraint(Sketcher.Constraint("Coincident", 25, 2, 26, 1))
sketch5.addConstraint(Sketcher.Constraint("Coincident", 26, 2, 27, 1))
sketch5.addConstraint(Sketcher.Constraint("Coincident", 27, 2, 28, 1))
sketch5.addConstraint(Sketcher.Constraint("Coincident", 28, 2, 29, 1))
sketch5.addConstraint(Sketcher.Constraint("Coincident", 29, 2, 30, 1))
sketch5.addConstraint(Sketcher.Constraint("Coincident", 30, 2, 31, 1))
sketch5.addConstraint(Sketcher.Constraint("Coincident", 31, 2, 32, 1))
sketch5.addConstraint(Sketcher.Constraint("Coincident", 32, 2, 33, 1))
sketch5.addConstraint(Sketcher.Constraint("Coincident", 33, 2, 34, 1))
sketch5.addConstraint(Sketcher.Constraint("Coincident", 34, 2, 0, 1))
sketch5.addConstraint(Sketcher.Constraint("Vertical", 34))
sketch5.addConstraint(Sketcher.Constraint("Vertical", 6, 2, 26, 2))
sketch5.addConstraint(Sketcher.Constraint("DistanceX", -1, 1, 6, 2, 13.0))
sketch5.addConstraint(Sketcher.Constraint("DistanceX", -1, 1, 16, 2, 3.0))
sketch5.addConstraint(Sketcher.Constraint("DistanceX", -1, 1, 33, 2, 28.0))
sketch5.addConstraint(Sketcher.Constraint("DistanceY", 25, 2, 7, 2, 2.5))
sketch5.addConstraint(Sketcher.Constraint("DistanceY", -1, 1, 16, 2, 0.25))
sketch5.addConstraint(Sketcher.Constraint("DistanceY", 1, 2, 2, 2, 0.37))
sketch5.addConstraint(Sketcher.Constraint("DistanceY", 9, 2, 5, 2, 0.02))
sketch5.addConstraint(Sketcher.Constraint("DistanceX", 14, 2, 12, 2, 1.23))
sketch5.addConstraint(Sketcher.Constraint("DistanceX", 15, 2, 19, 2, 1.04))
sketch5.addConstraint(Sketcher.Constraint("DistanceX", 18, 2, 20, 2, 1.27))
sketch5.addConstraint(Sketcher.Constraint("DistanceY", 30, 2, 31, 2, 0.12))
sketch5.addConstraint(Sketcher.Constraint("DistanceY", 34, 1, 34, 2, 0.0525))
sketch5.addConstraint(Sketcher.Constraint("DistanceY", -1, 1, 1, 2, 0.704))
sketch5.addConstraint(Sketcher.Constraint("DistanceY", -1, 1, 4, 2, 1.645))
sketch5.addConstraint(Sketcher.Constraint("DistanceY", -1, 1, 5, 2, 1.839))
sketch5.addConstraint(Sketcher.Constraint("DistanceY", -1, 1, 8, 2, 1.917))
sketch5.addConstraint(Sketcher.Constraint("DistanceY", -1, 1, 13, 2, 1.105))
sketch5.addConstraint(Sketcher.Constraint("DistanceY", 17, 2, -1, 1, 0.112))
sketch5.addConstraint(Sketcher.Constraint("DistanceY", 21, 2, -1, 1, 0.504))
sketch5.addConstraint(Sketcher.Constraint("DistanceY", 23, 2, -1, 1, 0.569))
sketch5.addConstraint(Sketcher.Constraint("DistanceY", 27, 2, -1, 1, 0.367))
sketch5.addConstraint(Sketcher.Constraint("DistanceY", 28, 2, -1, 1, 0.256))
sketch5.addConstraint(Sketcher.Constraint("DistanceY", -1, 1, 32, 2, 0.162))
sketch5.addConstraint(Sketcher.Constraint("DistanceX", 2, 2, 0, 2, 3.736))
sketch5.addConstraint(Sketcher.Constraint("DistanceX", 4, 2, 2, 2, 5.003))
sketch5.addConstraint(Sketcher.Constraint("DistanceX", 5, 2, 4, 2, 2.509))
sketch5.addConstraint(Sketcher.Constraint("DistanceY", 3, 2, 7, 2, 0.581))
sketch5.addConstraint(Sketcher.Constraint("DistanceX", 8, 2, 3, 2, 11.322))
sketch5.addConstraint(Sketcher.Constraint("DistanceX", 9, 2, 5, 2, 7.572))
sketch5.addConstraint(Sketcher.Constraint("DistanceX", 10, 2, 8, 2, 2.523))
sketch5.addConstraint(Sketcher.Constraint("DistanceY", 10, 2, 6, 2, 0.293))
sketch5.addConstraint(Sketcher.Constraint("DistanceX", 11, 2, 10, 2, 1.253))
sketch5.addConstraint(Sketcher.Constraint("DistanceY", 12, 2, 10, 2, 0.374))
sketch5.addConstraint(Sketcher.Constraint("DistanceX", 12, 2, 9, 2, 3.136))
sketch5.addConstraint(Sketcher.Constraint("DistanceX", 13, 2, 11, 2, 1.242))
sketch5.addConstraint(Sketcher.Constraint("DistanceX", 15, 2, 13, 2, 0.911))
sketch5.addConstraint(Sketcher.Constraint("DistanceY", 15, 2, 11, 2, 0.768))
sketch5.addConstraint(Sketcher.Constraint("DistanceX", 15, 2, 17, 2, 0.076))
sketch5.addConstraint(Sketcher.Constraint("DistanceY", 19, 2, 15, 2, 1.044))
sketch5.addConstraint(Sketcher.Constraint("DistanceX", 19, 2, 21, 2, 1.258))
sketch5.addConstraint(Sketcher.Constraint("DistanceX", 21, 2, 22, 2, 1.247))
sketch5.addConstraint(Sketcher.Constraint("DistanceY", 22, 2, 10, 2, 2.223))
sketch5.addConstraint(Sketcher.Constraint("DistanceX", 8, 2, 24, 2, 0.093))
sketch5.addConstraint(Sketcher.Constraint("DistanceX", 9, 2, 25, 2, 2.591))
sketch5.addConstraint(Sketcher.Constraint("DistanceY", 25, 2, 26, 2, 0.072))
sketch5.addConstraint(Sketcher.Constraint("DistanceX", 27, 2, 28, 2, 2.491))
sketch5.addConstraint(Sketcher.Constraint("DistanceX", 29, 2, 3, 2, 0.051))
sketch5.addConstraint(Sketcher.Constraint("DistanceX", 30, 2, 1, 2, 2.541))
sketch5.addConstraint(Sketcher.Constraint("DistanceY", 30, 2, 0, 2, 0.516))
sketch5.addConstraint(Sketcher.Constraint("DistanceX", 31, 2, 0, 2, 1.277))
sketch5.addConstraint(Sketcher.Constraint("DistanceX", 1, 2, 32, 2, 1.223))
sketch5.addConstraint(Sketcher.Constraint("Distance", 26, 2.4698))
sketch5.addConstraint(Sketcher.Constraint("DistanceY", -1, 1, 0, 2, 0.4975))
sketch5.addConstraint(Sketcher.Constraint("DistanceX", -1, 1, 3, 2, 20.5255))
sketch5.addConstraint(Sketcher.Constraint("DistanceY", -1, 1, 11, 2, 1.4415))
sketch5.addConstraint(Sketcher.Constraint("DistanceY", 24, 2, -1, 1, 0.5575))
sketch5.addConstraint(Sketcher.Constraint("DistanceX", 1, 2, 0, 2, 1.2435))
sketch5.addConstraint(Sketcher.Constraint("DistanceY", 3, 2, 6, 2, 0.5715))
sketch5.addConstraint(Sketcher.Constraint("DistanceX", 7, 2, 5, 2, 5.0435))
sketch5.addConstraint(Sketcher.Constraint("DistanceY", 14, 2, 12, 2, 0.4395))
sketch5.addConstraint(Sketcher.Constraint("DistanceX", 14, 2, 18, 2, 0.1015))
sketch5.addConstraint(Sketcher.Constraint("DistanceY", 18, 2, 14, 2, 1.0845))
sketch5.addConstraint(Sketcher.Constraint("DistanceY", 20, 2, 18, 2, 0.2205))
sketch5.addConstraint(Sketcher.Constraint("DistanceX", 9, 2, 23, 2, 0.1195))
sketch5.addConstraint(Sketcher.Constraint("DistanceX", 27, 2, 5, 2, 0.0245))
sketch5.addConstraint(Sketcher.Constraint("DistanceY", 29, 2, 3, 2, 1.5255))
sketch5.addConstraint(Sketcher.Constraint("Distance", 3, 2.518371))
sketch5.addConstraint(Sketcher.Constraint("Distance", 33, 1.261762))
pocket2 = body.newObject("PartDesign::Pocket", "Pocket001")
pocket2.Profile = sketch5
pocket2.Type = "ThroughAll"

# Sketch on XY plane
sketch6 = body.newObject("Sketcher::SketchObject", "Sketch005")
sketch6.AttachmentSupport = (doc.getObject("XY_Plane"), [""])
sketch6.MapMode = "FlatFace"
sketch6.addGeometry(Part.LineSegment(V(-13, 0.2, 0), V(-13, 1.2, 0)), False)
sketch6.addGeometry(Part.LineSegment(V(-13, 1.2, 0), V(-1, 1.2, 0)), False)
sketch6.addGeometry(Part.LineSegment(V(-1, 1.2, 0), V(-1, 0.2, 0)), False)
sketch6.addGeometry(Part.LineSegment(V(-1, 0.2, 0), V(-13, 0.2, 0)), False)
sketch6.addConstraint(Sketcher.Constraint("Coincident", 0, 2, 1, 1))
sketch6.addConstraint(Sketcher.Constraint("Coincident", 1, 2, 2, 1))
sketch6.addConstraint(Sketcher.Constraint("Coincident", 2, 2, 3, 1))
sketch6.addConstraint(Sketcher.Constraint("Coincident", 3, 2, 0, 1))
sketch6.addConstraint(Sketcher.Constraint("Vertical", 0))
sketch6.addConstraint(Sketcher.Constraint("Horizontal", 1))
sketch6.addConstraint(Sketcher.Constraint("Vertical", 2))
sketch6.addConstraint(Sketcher.Constraint("Horizontal", 3))
sketch6.addConstraint(Sketcher.Constraint("DistanceX", 1, 1, 1, 2, 12.0))
sketch6.addConstraint(Sketcher.Constraint("DistanceX", 0, 2, -1, 1, 13.0))
sketch6.addConstraint(Sketcher.Constraint("DistanceY", -1, 1, 0, 2, 1.25))
sketch6.addConstraint(Sketcher.Constraint("DistanceY", 0, 1, 0, 2, 1.0604))
pocket3 = body.newObject("PartDesign::Pocket", "Pocket002")
pocket3.Profile = sketch6
pocket3.Type = "ThroughAll"
pocket3.Reversed = True

# Sketch on XY plane
sketch7 = body.newObject("Sketcher::SketchObject", "Sketch006")
sketch7.AttachmentSupport = (doc.getObject("XY_Plane"), [""])
sketch7.MapMode = "FlatFace"
sketch7.addGeometry(Part.LineSegment(V(33, 0, 0), V(40, 0, 0)), False)
sketch7.addGeometry(Part.LineSegment(V(40, 0, 0), V(33, -7, 0)), False)
sketch7.addGeometry(Part.LineSegment(V(33, -7, 0), V(33, 0, 0)), False)
sketch7.addConstraint(Sketcher.Constraint("Coincident", 0, 2, 1, 1))
sketch7.addConstraint(Sketcher.Constraint("Coincident", 1, 2, 2, 1))
sketch7.addConstraint(Sketcher.Constraint("Coincident", 2, 2, 0, 1))
sketch7.addConstraint(Sketcher.Constraint("Horizontal", 0))
sketch7.addConstraint(Sketcher.Constraint("Vertical", 2))
sketch7.addConstraint(Sketcher.Constraint("PointOnObject", 0, 2, -1))
sketch7.addConstraint(Sketcher.Constraint("Equal", 0, 2))
sketch7.addConstraint(Sketcher.Constraint("DistanceX", 0, 1, 0, 2, 7.0))
sketch7.addConstraint(Sketcher.Constraint("DistanceX", -1, 1, 0, 2, 40.0))
pad4 = body.newObject("PartDesign::Pad", "Pad003")
pad4.Profile = sketch7
pad4.Length = 2

# Sketch on XY plane
sketch8 = body.newObject("Sketcher::SketchObject", "Sketch007")
sketch8.AttachmentSupport = (doc.getObject("XY_Plane"), [""])
sketch8.MapMode = "FlatFace"
sketch8.addGeometry(Part.Circle(V(34, -4.5, 0), V(0, 0, 1), 0.5), False)
sketch8.addConstraint(Sketcher.Constraint("Diameter", 0, 1.0))
sketch8.addConstraint(Sketcher.Constraint("DistanceX", -1, 1, 0, 3, 34.0))
sketch8.addConstraint(Sketcher.Constraint("DistanceY", 0, 3, -1, 1, 4.5))
pocket4 = body.newObject("PartDesign::Pocket", "Pocket003")
pocket4.Profile = sketch8
pocket4.Type = "ThroughAll"
pocket4.Reversed = True

doc.recompute()
